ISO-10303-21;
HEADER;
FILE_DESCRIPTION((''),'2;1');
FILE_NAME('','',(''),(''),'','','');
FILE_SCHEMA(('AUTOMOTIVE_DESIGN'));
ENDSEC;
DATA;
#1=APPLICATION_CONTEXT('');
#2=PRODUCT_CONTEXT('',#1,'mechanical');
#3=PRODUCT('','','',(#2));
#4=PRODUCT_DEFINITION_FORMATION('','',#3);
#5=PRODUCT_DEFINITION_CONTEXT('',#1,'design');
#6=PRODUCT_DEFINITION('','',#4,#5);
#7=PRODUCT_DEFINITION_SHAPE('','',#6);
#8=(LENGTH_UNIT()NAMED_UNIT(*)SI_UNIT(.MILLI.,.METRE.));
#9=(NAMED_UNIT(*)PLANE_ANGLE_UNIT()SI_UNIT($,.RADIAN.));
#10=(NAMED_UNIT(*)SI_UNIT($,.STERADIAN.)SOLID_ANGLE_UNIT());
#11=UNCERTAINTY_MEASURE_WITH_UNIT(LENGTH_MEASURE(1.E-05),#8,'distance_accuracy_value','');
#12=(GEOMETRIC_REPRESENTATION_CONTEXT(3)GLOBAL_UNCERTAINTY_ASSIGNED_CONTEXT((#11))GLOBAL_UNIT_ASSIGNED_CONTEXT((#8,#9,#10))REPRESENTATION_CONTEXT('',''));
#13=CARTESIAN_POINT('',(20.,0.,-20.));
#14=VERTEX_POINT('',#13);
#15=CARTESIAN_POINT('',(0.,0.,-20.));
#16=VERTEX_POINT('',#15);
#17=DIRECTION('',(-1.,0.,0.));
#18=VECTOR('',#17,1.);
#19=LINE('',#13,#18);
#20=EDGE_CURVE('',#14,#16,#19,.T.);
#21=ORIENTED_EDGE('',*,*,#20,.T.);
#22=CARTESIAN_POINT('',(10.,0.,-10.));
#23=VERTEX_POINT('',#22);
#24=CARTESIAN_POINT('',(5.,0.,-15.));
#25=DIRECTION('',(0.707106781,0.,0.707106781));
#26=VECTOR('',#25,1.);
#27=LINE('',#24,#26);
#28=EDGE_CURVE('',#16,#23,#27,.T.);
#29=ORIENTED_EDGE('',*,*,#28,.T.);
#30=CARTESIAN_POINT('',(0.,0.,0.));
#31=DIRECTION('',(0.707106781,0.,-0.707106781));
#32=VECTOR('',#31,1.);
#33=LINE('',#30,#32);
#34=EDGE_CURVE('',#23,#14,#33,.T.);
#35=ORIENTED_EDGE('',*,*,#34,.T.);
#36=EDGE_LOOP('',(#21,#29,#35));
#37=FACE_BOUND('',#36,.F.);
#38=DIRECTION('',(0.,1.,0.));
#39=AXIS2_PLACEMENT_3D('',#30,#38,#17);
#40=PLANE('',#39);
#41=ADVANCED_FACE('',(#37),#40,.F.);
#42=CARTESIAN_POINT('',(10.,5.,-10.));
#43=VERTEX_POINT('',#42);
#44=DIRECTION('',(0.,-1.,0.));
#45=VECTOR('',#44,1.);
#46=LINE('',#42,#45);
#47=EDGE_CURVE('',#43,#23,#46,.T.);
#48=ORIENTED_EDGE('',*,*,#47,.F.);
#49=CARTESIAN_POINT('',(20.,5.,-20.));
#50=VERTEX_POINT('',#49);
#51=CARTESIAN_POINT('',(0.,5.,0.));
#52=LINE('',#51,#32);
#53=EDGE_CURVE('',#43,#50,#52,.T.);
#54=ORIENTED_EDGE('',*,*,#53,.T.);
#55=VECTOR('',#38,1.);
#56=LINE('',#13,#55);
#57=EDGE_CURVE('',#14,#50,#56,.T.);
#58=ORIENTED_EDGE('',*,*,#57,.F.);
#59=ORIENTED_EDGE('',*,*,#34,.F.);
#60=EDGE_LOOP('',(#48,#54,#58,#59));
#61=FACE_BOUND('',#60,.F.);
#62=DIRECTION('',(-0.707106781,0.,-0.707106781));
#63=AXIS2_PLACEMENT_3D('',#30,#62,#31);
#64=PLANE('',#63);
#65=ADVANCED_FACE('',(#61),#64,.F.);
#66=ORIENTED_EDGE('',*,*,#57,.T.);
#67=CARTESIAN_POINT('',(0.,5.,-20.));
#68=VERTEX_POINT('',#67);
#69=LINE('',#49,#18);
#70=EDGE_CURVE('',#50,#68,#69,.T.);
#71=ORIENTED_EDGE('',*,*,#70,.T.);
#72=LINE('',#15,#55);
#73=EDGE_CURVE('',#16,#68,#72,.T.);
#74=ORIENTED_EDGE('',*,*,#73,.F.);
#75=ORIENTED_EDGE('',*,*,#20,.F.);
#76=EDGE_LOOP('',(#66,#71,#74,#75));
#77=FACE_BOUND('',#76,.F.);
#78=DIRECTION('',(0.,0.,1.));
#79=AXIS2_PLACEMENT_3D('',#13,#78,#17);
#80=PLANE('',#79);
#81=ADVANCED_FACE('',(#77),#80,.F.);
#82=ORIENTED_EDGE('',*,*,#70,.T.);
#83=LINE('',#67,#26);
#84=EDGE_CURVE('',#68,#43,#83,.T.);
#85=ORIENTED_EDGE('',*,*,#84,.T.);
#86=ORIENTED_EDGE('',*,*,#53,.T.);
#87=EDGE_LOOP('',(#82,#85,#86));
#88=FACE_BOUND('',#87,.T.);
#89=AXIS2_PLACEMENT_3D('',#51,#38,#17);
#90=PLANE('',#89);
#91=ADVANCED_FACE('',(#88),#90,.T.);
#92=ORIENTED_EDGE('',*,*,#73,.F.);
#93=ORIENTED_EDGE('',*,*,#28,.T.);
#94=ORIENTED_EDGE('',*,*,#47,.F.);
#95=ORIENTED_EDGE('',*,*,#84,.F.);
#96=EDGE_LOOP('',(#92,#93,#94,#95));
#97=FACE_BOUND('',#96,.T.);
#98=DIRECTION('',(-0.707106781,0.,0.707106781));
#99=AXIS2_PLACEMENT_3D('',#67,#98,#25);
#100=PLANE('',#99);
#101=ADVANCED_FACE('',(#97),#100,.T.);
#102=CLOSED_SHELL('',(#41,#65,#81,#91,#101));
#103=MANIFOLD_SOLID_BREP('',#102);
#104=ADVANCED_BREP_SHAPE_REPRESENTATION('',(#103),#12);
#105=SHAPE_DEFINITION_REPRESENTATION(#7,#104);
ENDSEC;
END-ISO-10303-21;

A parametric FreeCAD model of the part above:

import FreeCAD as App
import Part
import Sketcher


def add_polygon(sketch, points):
    """Adds a closed chain of lines whose ends are joined by coincident constraints."""
    first, n = sketch.GeometryCount, len(points)
    for a, b in zip(points, points[1:] + points[:1]):
        sketch.addGeometry(Part.LineSegment(App.Vector(*a, 0), App.Vector(*b, 0)), False)
    for i in range(n):
        sketch.addConstraint(Sketcher.Constraint("Coincident", first + i, 2, first + (i + 1) % n, 1))

doc = App.newDocument("Part")
body = doc.addObject("PartDesign::Body", "Body")

# Sketch on XZ plane
sketch1 = doc.addObject("Sketcher::SketchObject", "Sketch")
body.addObject(sketch1)
sketch1.AttachmentSupport = (doc.XZ_Plane, [""])
sketch1.MapMode = "FlatFace"
add_polygon(sketch1, [(0, -20), (0, 0), (20, 0), (20, -20)])  # lines 0-3
sketch1.addConstraint([
    Sketcher.Constraint("Vertical", 0),
    Sketcher.Constraint("Horizontal", 1),
    Sketcher.Constraint("Vertical", 2),
    Sketcher.Constraint("Horizontal", 3),
    Sketcher.Constraint("Coincident", 0, 2, -1, 1),
    Sketcher.Constraint("Equal", 3, 0),
    Sketcher.Constraint("DistanceX", 1, 1, 1, 2, 20.0),
])
pad1 = doc.addObject("PartDesign::Pad", "Pad")
body.addObject(pad1)
pad1.Profile = sketch1
pad1.Length = 5
pad1.Reversed = True

# Sketch on XZ plane
sketch2 = doc.addObject("Sketcher::SketchObject", "Sketch001")
body.addObject(sketch2)
sketch2.AttachmentSupport = (doc.XZ_Plane, [""])
sketch2.MapMode = "FlatFace"
add_polygon(sketch2, [(20, 0), (0, 0), (20, -20)])  # lines 0-2
sketch2.addConstraint([
    Sketcher.Constraint("Horizontal", 0),
    Sketcher.Constraint("Vertical", 2),
    Sketcher.Constraint("Coincident", 0, 2, -1, 1),
    Sketcher.Constraint("Equal", 0, 2),
    Sketcher.Constraint("DistanceX", 0, 2, 0, 1, 20.0),
])
pocket1 = doc.addObject("PartDesign::Pocket", "Pocket")
body.addObject(pocket1)
pocket1.Profile = sketch2
pocket1.Length = 5

# Sketch on XZ plane
sketch3 = doc.addObject("Sketcher::SketchObject", "Sketch002")
body.addObject(sketch3)
sketch3.AttachmentSupport = (doc.XZ_Plane, [""])
sketch3.MapMode = "FlatFace"
sketch3.AttachmentOffset = App.Placement(App.Vector(0, 0, -5), App.Rotation())
add_polygon(sketch3, [(10, -10), (0, -20), (0, 0)])  # lines 0-2
sketch3.addConstraint([
    Sketcher.Constraint("Vertical", 1),
    Sketcher.Constraint("Coincident", 1, 2, -1, 1),
    Sketcher.Constraint("Perpendicular", 0, 2),
    Sketcher.Constraint("Equal", 0, 2),
    Sketcher.Constraint("DistanceY", 1, 1, 1, 2, 20.0),
])
pocket2 = doc.addObject("PartDesign::Pocket", "Pocket001")
body.addObject(pocket2)
pocket2.Profile = sketch3
pocket2.Length = 10
pocket2.Reversed = True

doc.recompute()
